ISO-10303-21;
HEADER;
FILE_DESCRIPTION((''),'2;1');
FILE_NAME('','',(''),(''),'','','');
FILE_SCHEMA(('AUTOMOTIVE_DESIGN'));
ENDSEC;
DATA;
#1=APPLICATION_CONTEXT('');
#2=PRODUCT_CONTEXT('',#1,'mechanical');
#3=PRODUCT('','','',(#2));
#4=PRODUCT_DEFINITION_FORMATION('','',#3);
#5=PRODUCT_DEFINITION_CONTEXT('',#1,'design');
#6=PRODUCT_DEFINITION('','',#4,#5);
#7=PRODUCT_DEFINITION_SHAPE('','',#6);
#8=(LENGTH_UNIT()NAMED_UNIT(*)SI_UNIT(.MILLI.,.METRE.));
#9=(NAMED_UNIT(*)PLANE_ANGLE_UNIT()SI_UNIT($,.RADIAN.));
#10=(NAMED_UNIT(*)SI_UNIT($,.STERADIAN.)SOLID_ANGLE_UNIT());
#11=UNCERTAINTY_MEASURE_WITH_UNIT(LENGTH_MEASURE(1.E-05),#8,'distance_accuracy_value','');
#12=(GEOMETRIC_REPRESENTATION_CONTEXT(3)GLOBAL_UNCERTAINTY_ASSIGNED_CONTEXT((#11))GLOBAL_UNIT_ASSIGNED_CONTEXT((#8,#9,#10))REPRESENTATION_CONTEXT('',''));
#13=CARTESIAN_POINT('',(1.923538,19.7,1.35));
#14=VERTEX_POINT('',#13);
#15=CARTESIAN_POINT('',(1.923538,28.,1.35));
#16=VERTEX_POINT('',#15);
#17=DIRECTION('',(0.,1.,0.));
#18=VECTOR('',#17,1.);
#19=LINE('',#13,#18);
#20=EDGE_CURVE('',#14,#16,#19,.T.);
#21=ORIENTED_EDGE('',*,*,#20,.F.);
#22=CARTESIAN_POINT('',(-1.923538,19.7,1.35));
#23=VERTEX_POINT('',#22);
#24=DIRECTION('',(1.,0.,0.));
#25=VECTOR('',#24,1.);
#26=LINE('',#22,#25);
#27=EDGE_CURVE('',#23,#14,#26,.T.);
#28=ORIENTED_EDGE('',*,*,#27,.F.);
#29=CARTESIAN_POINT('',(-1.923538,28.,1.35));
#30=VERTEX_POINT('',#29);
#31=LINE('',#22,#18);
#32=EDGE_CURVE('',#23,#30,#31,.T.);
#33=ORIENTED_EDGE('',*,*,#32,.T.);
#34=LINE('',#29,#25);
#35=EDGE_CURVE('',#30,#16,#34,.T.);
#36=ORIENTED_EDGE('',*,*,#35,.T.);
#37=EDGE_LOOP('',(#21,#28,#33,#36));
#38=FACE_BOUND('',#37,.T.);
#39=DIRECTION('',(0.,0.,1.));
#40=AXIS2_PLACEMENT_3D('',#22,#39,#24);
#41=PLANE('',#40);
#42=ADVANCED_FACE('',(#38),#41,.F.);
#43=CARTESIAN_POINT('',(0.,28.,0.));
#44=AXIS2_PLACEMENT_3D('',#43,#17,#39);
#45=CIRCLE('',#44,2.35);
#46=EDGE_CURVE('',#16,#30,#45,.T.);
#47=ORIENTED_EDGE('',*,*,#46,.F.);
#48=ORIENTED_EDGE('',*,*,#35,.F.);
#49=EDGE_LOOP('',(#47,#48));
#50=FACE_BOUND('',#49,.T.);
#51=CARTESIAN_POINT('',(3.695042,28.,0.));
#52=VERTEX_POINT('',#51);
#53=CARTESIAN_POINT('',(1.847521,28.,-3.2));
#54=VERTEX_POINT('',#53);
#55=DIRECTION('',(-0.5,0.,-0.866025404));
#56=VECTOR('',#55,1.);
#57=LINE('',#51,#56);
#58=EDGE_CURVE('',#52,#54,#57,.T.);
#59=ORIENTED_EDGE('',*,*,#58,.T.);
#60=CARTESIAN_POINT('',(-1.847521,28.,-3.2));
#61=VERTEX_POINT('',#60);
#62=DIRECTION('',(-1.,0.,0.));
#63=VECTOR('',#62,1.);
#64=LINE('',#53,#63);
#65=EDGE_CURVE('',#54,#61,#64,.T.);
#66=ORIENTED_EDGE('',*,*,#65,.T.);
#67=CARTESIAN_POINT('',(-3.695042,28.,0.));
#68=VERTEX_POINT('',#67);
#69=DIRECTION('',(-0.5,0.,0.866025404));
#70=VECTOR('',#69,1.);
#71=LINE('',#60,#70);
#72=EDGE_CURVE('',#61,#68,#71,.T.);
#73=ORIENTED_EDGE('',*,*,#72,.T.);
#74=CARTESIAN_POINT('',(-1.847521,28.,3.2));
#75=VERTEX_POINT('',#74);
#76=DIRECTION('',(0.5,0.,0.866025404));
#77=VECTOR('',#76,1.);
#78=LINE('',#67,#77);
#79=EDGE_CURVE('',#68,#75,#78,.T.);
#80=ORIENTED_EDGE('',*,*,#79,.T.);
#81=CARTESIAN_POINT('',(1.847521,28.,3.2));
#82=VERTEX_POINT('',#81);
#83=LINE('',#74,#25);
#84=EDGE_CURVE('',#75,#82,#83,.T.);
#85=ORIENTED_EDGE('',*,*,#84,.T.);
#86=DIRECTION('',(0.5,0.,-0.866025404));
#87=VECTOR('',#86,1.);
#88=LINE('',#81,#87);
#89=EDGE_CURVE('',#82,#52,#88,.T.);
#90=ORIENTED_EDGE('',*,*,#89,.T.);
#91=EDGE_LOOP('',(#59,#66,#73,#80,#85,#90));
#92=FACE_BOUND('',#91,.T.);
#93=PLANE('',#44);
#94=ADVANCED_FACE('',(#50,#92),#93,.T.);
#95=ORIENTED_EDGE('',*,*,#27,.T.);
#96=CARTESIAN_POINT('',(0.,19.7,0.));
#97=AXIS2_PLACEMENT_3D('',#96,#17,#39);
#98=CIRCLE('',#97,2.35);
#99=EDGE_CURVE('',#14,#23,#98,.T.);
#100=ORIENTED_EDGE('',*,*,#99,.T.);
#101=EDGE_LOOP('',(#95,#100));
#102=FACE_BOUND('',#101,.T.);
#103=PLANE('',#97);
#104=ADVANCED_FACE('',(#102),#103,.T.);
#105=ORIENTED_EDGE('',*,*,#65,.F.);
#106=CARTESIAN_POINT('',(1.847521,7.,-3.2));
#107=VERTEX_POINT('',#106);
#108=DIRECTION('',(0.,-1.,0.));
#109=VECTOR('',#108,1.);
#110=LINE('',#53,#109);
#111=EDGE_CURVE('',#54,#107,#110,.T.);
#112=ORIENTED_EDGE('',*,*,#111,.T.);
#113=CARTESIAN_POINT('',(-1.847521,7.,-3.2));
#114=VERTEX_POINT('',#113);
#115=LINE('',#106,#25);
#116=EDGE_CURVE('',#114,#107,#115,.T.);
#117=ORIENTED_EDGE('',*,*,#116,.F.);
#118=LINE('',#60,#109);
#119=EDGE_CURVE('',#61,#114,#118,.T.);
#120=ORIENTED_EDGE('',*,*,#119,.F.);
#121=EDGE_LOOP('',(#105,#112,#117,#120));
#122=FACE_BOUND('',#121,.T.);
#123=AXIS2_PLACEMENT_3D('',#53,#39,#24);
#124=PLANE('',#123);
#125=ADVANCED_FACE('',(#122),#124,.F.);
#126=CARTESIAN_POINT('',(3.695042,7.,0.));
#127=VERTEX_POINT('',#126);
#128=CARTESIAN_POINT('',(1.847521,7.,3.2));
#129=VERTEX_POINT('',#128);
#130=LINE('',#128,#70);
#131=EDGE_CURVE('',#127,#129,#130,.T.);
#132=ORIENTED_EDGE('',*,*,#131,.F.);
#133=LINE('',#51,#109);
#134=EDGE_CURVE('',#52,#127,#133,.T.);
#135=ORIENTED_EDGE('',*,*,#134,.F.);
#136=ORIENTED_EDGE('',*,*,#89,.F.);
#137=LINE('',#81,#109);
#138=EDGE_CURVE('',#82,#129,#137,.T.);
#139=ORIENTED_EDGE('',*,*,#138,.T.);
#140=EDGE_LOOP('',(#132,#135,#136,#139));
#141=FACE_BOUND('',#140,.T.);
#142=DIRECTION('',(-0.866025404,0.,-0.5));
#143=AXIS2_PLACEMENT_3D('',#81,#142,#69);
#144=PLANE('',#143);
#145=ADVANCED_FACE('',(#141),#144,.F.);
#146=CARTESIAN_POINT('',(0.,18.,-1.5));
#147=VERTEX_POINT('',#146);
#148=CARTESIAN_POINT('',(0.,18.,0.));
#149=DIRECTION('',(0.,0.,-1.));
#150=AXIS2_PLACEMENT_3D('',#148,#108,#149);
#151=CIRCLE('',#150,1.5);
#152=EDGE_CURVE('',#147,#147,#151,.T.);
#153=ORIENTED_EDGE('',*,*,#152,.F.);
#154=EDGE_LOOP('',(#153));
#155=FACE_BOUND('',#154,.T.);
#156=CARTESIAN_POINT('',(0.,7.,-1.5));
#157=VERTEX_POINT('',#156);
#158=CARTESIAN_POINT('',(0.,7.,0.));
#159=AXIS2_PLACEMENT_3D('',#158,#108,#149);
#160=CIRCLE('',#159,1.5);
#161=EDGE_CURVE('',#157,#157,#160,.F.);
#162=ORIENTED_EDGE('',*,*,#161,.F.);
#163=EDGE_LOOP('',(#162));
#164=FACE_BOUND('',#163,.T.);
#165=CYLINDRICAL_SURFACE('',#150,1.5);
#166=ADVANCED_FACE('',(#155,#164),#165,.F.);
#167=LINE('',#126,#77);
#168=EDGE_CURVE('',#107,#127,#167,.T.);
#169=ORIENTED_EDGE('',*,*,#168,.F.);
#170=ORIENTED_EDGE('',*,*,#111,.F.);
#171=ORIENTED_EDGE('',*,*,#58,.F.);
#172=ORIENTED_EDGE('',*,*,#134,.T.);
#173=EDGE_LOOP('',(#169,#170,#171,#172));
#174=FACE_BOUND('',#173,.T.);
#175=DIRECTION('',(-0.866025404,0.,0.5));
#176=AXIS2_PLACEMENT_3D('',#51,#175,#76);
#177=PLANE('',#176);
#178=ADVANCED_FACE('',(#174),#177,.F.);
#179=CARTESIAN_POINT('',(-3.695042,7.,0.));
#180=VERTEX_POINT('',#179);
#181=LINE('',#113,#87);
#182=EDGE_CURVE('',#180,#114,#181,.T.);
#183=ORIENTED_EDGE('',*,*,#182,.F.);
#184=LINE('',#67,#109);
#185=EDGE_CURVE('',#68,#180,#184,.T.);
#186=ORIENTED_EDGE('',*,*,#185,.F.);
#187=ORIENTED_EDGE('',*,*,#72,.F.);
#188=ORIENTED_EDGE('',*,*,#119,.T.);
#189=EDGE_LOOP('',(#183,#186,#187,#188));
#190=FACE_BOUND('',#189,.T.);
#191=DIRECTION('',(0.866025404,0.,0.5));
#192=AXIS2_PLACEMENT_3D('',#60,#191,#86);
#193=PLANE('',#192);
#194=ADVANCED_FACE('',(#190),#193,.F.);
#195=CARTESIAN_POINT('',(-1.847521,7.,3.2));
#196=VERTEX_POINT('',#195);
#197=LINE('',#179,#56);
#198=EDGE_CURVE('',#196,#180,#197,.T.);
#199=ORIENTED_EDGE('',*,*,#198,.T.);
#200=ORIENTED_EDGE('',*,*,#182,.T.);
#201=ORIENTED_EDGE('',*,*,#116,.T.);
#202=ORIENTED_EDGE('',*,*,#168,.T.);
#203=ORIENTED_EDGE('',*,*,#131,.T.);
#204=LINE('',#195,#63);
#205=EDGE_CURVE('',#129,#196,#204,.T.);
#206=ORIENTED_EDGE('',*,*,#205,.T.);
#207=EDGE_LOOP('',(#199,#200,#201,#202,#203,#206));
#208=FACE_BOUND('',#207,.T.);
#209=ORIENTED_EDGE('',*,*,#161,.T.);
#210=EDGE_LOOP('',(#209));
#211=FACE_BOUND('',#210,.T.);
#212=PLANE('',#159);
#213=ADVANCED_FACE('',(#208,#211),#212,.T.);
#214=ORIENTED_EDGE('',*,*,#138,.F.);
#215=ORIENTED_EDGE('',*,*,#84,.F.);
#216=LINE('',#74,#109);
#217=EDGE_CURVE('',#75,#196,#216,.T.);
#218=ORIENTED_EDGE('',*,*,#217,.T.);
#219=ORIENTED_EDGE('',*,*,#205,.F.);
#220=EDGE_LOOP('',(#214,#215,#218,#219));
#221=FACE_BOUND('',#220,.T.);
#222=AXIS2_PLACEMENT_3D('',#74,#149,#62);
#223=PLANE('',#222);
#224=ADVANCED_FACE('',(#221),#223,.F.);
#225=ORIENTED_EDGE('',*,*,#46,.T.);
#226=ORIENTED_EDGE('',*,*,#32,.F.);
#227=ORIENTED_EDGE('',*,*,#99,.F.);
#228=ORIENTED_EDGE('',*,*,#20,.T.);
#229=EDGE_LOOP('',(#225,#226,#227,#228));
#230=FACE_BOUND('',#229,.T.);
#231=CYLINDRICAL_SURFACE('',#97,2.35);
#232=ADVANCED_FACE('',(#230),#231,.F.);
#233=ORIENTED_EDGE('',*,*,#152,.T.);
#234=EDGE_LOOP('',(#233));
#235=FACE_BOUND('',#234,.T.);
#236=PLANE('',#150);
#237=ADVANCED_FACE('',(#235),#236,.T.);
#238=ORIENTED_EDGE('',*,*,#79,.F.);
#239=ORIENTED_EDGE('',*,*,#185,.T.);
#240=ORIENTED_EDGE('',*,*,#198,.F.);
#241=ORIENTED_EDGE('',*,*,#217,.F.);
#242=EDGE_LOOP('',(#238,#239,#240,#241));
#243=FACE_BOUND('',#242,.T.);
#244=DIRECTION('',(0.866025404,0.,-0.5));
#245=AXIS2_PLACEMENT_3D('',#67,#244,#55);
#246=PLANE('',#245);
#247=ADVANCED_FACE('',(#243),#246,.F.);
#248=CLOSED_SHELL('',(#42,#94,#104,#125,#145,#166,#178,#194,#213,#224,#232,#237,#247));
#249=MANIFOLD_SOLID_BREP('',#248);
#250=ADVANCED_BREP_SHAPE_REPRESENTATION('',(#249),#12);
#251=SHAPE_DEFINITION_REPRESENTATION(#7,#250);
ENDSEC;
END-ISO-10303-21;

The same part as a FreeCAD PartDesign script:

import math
import FreeCAD as App
import Part
import Sketcher

V = App.Vector
Q = App.Units.Quantity

doc = App.newDocument("Part")
params = doc.addObject("Spreadsheet::Sheet", "Params")
for row, (alias, value) in enumerate([
    ("pad1_length", "28 mm"),
    ("sketch2_radius", "2.35 mm"),
    ("pocket1_length", "8.3 mm"),
    ("sketch3_diameter", "3 mm"),
    ("pocket2_length", "18 mm"),
    ("sketch4_diameter", "8 mm"),
    ("pocket3_length", "7 mm"),
], start=1):
    params.set(f"A{row}", alias)
    params.set(f"B{row}", "=" + value)
    params.setAlias(f"B{row}", alias)

body = doc.addObject("PartDesign::Body", "Body")

# Sketch on XZ plane
sketch1 = body.newObject("Sketcher::SketchObject", "Sketch")
sketch1.AttachmentSupport = (doc.getObject("XZ_Plane"), [""])
sketch1.MapMode = "FlatFace"
sketch1.addGeometry([
    Part.LineSegment(V(3.695042, 0, 0), V(1.847521, -3.2, 0)),  # 0
    Part.LineSegment(V(1.847521, -3.2, 0), V(-1.847521, -3.2, 0)),  # 1
    Part.LineSegment(V(-1.847521, -3.2, 0), V(-3.695042, 0, 0)),  # 2
    Part.LineSegment(V(-3.695042, 0, 0), V(-1.847521, 3.2, 0)),  # 3
    Part.LineSegment(V(-1.847521, 3.2, 0), V(1.847521, 3.2, 0)),  # 4
    Part.LineSegment(V(1.847521, 3.2, 0), V(3.695042, 0, 0)),  # 5
], False)
sketch1.addConstraint([
    Sketcher.Constraint("Coincident", 0, 2, 1, 1),
    Sketcher.Constraint("Coincident", 1, 2, 2, 1),
    Sketcher.Constraint("Coincident", 2, 2, 3, 1),
    Sketcher.Constraint("Coincident", 3, 2, 4, 1),
    Sketcher.Constraint("Coincident", 4, 2, 5, 1),
    Sketcher.Constraint("Coincident", 5, 2, 0, 1),
    Sketcher.Constraint("Horizontal", 1),
    Sketcher.Constraint("Horizontal", 4),
    Sketcher.Constraint("Symmetric", 0, 2, 3, 2, -1, 1),
    Sketcher.Constraint("Symmetric", 2, 2, 5, 2, -1, 1),
    Sketcher.Constraint("PointOnObject", 2, 2, -1),
    Sketcher.Constraint("Parallel", 2, 5),
    Sketcher.Constraint("Vertical", 1, 2, 3, 2),
    Sketcher.Constraint("Angle", 0, Q("-120 deg")),
    Sketcher.Constraint("DistanceY", 0, 2, -1, 1, Q("3.2 mm")),
    Sketcher.Constraint("DistanceX", 1, 2, 1, 1, Q("3.695042 mm")),
])
pad1 = body.newObject("PartDesign::Pad", "Pad")
pad1.Profile = sketch1
pad1.setExpression("Length", "Params.pad1_length")
pad1.Reversed = True

# Sketch on XZ plane
sketch2 = body.newObject("Sketcher::SketchObject", "Sketch001")
sketch2.AttachmentSupport = (doc.getObject("XZ_Plane"), [""])
sketch2.MapMode = "FlatFace"
sketch2.AttachmentOffset = App.Placement(V(0, 0, -28), App.Rotation())
sketch2.addGeometry([
    Part.LineSegment(V(-1.923538, 1.35, 0), V(1.923538, 1.35, 0)),
    Part.ArcOfCircle(Part.Circle(V(0, 0, 0), V(0, 0, 1), 2.35), math.radians(144.93761), math.radians(395.06239)),
], False)
sketch2.addConstraint([
    Sketcher.Constraint("Coincident", 0, 1, 1, 1),
    Sketcher.Constraint("Coincident", 1, 2, 0, 2),
    Sketcher.Constraint("Horizontal", 0),
    Sketcher.Constraint("Coincident", 1, 3, -1, 1),
    Sketcher.Constraint("Radius", 1, Q("2.35 mm")),
    Sketcher.Constraint("DistanceY", -1, 1, 0, 1, Q("1.35 mm")),
])
sketch2.setExpression("Constraints[4]", "Params.sketch2_radius")
pocket1 = body.newObject("PartDesign::Pocket", "Pocket")
pocket1.Profile = sketch2
pocket1.setExpression("Length", "Params.pocket1_length")
pocket1.Reversed = True

# Sketch on XZ plane
sketch3 = body.newObject("Sketcher::SketchObject", "Sketch002")
sketch3.AttachmentSupport = (doc.getObject("XZ_Plane"), [""])
sketch3.MapMode = "FlatFace"
sketch3.addGeometry(Part.Circle(V(0, 0, 0), V(0, 0, 1), 1.5), False)
sketch3.addConstraint([
    Sketcher.Constraint("Coincident", 0, 3, -1, 1),
    Sketcher.Constraint("Diameter", 0, Q("3 mm")),
])
sketch3.setExpression("Constraints[1]", "Params.sketch3_diameter")
pocket2 = body.newObject("PartDesign::Pocket", "Pocket001")
pocket2.Profile = sketch3
pocket2.setExpression("Length", "Params.pocket2_length")

# Sketch on XZ plane
sketch4 = body.newObject("Sketcher::SketchObject", "Sketch003")
sketch4.AttachmentSupport = (doc.getObject("XZ_Plane"), [""])
sketch4.MapMode = "FlatFace"
sketch4.addGeometry(Part.Circle(V(0, 0, 0), V(0, 0, 1), 4), False)
sketch4.addConstraint([
    Sketcher.Constraint("Coincident", 0, 3, -1, 1),
    Sketcher.Constraint("Diameter", 0, Q("8 mm")),
])
sketch4.setExpression("Constraints[1]", "Params.sketch4_diameter")
pocket3 = body.newObject("PartDesign::Pocket", "Pocket002")
pocket3.Profile = sketch4
pocket3.setExpression("Length", "Params.pocket3_length")

doc.recompute()
